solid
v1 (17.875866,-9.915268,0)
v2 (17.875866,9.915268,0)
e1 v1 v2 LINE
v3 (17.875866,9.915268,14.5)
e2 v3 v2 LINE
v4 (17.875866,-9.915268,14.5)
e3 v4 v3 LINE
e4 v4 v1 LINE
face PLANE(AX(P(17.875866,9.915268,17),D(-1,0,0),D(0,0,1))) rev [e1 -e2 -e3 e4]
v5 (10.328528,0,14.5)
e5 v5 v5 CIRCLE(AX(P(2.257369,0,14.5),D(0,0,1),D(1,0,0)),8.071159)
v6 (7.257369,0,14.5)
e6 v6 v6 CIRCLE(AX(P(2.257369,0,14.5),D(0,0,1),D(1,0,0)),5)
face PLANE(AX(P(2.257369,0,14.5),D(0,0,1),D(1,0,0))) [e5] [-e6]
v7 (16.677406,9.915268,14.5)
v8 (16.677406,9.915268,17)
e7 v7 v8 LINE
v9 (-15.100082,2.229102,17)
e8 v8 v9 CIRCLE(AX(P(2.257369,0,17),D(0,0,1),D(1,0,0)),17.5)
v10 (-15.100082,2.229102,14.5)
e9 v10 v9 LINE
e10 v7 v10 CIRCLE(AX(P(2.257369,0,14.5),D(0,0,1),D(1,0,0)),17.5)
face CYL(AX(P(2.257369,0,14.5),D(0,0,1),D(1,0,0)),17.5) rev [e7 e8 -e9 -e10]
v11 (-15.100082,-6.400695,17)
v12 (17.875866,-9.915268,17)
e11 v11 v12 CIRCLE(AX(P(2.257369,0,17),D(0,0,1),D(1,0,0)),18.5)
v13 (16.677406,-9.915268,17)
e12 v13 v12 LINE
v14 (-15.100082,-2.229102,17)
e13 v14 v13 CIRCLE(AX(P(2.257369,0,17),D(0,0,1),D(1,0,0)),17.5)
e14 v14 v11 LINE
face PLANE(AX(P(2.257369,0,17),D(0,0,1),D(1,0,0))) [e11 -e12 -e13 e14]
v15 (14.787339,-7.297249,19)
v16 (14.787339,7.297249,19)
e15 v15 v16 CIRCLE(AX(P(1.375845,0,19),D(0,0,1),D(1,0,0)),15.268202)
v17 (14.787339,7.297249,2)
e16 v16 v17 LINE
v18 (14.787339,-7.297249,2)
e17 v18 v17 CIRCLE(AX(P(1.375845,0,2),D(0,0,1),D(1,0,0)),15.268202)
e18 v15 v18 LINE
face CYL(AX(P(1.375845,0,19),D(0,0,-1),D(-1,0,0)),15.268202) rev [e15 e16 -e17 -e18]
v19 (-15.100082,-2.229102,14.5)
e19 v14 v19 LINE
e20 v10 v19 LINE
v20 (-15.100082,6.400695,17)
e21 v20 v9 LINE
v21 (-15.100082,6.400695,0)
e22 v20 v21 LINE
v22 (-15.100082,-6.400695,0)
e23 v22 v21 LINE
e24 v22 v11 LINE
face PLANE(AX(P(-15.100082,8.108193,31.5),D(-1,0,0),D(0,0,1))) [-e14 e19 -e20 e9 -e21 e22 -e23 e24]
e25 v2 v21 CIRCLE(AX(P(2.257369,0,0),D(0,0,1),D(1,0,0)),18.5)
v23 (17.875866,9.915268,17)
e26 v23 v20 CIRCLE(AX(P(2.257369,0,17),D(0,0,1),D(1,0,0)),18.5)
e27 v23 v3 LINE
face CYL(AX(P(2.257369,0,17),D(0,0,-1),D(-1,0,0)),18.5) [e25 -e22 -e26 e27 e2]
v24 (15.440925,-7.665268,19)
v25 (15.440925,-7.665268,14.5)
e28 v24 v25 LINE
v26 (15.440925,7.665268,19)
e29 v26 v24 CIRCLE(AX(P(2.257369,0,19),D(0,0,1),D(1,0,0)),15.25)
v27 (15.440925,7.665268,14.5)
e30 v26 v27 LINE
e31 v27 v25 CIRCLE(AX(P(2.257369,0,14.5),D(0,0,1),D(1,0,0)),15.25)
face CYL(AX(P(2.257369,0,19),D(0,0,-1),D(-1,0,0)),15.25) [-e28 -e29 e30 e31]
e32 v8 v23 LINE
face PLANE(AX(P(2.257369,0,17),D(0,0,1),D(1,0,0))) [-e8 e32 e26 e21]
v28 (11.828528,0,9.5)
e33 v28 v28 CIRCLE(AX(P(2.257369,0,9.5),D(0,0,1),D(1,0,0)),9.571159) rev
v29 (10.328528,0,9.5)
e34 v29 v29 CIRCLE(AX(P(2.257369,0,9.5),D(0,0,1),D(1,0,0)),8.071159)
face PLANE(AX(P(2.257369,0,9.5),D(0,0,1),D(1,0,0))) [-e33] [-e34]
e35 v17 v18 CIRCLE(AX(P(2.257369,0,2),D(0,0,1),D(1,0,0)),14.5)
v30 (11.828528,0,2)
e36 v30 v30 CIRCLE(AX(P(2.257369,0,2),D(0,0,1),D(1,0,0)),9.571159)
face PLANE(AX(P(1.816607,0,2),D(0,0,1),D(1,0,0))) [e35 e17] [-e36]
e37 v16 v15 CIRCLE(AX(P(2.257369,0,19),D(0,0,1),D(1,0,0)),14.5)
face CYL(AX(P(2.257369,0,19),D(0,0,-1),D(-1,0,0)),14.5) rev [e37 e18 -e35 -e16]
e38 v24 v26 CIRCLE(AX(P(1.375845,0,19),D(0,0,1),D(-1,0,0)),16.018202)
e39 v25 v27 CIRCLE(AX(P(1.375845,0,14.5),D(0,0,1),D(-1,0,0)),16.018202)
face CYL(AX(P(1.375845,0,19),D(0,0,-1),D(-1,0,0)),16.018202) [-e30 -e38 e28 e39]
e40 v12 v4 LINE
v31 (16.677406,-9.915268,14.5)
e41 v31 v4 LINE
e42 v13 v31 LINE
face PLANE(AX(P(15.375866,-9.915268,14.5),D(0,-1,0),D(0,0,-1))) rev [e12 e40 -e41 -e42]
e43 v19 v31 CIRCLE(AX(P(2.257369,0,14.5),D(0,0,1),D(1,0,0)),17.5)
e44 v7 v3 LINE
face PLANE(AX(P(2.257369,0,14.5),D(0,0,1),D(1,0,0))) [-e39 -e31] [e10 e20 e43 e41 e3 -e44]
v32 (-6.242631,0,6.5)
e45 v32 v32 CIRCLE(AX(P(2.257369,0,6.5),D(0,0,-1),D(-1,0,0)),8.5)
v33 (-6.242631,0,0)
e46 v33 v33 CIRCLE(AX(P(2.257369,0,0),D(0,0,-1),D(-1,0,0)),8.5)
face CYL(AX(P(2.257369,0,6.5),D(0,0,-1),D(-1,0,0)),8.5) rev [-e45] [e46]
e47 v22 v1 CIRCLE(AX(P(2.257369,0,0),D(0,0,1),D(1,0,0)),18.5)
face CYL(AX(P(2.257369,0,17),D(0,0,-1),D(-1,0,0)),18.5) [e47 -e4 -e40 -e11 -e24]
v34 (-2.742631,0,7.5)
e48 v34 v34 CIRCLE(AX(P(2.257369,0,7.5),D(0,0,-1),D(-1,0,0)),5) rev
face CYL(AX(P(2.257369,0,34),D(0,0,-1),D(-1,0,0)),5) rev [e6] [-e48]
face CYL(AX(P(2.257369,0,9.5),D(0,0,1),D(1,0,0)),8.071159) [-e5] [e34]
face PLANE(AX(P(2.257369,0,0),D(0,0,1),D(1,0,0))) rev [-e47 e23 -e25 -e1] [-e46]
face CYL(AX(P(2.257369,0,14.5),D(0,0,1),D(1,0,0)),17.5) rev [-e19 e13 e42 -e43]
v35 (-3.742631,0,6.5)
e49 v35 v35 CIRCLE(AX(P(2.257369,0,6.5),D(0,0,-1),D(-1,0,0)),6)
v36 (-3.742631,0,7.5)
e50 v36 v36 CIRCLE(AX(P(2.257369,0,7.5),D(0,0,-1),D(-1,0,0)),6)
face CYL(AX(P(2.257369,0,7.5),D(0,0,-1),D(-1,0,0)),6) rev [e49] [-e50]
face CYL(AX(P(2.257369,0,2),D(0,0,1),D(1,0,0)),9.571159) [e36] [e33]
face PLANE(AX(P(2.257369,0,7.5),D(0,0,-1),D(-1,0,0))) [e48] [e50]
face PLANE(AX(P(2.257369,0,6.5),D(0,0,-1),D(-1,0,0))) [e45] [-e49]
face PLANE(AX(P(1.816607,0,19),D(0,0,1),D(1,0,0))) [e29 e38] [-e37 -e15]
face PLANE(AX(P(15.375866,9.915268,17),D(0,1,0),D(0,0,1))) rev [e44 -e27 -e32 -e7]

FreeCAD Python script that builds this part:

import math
import FreeCAD as App
import Part
import Sketcher
Q = App.Units.Quantity

doc = App.newDocument("Part")
body = doc.addObject("PartDesign::Body", "Body")

sketch1 = doc.addObject("Sketcher::SketchObject", "Sketch")
body.addObject(sketch1)
sketch1.AttachmentSupport = (doc.XY_Plane, [""])
sketch1.MapMode = "FlatFace"
sketch1.addGeometry(Part.LineSegment(App.Vector(18, -10, 0), App.Vector(18, 10, 0)), False)
sketch1.addGeometry(Part.ArcOfCircle(Part.Circle(App.Vector(2, 0, 0), App.Vector(0, 0, 1), 18), math.radians(32), math.radians(328)), False)
sketch1.addConstraint(Sketcher.Constraint("Coincident", 0, 1, 1, 2))
sketch1.addConstraint(Sketcher.Constraint("Coincident", 1, 1, 0, 2))
sketch1.addConstraint(Sketcher.Constraint("Vertical", 0))
sketch1.addConstraint(Sketcher.Constraint("PointOnObject", 1, 3, -1))
sketch1.addConstraint(Sketcher.Constraint("Radius", 1, Q("18.5 mm")))
sketch1.addConstraint(Sketcher.Constraint("DistanceY", 0, 1, 0, 2, Q("19.830536 mm")))
sketch1.addConstraint(Sketcher.Constraint("DistanceX", -1, 1, 1, 3, Q("2.257369 mm")))
pad1 = doc.addObject("PartDesign::Pad", "Pad")
body.addObject(pad1)
pad1.Profile = sketch1
pad1.Length = 17

sketch2 = doc.addObject("Sketcher::SketchObject", "Sketch001")
body.addObject(sketch2)
sketch2.AttachmentSupport = (doc.XY_Plane, [""])
sketch2.MapMode = "FlatFace"
sketch2.AttachmentOffset = App.Placement(App.Vector(0, 0, 17), App.Rotation())
sketch2.addGeometry(Part.LineSegment(App.Vector(17, -10, 0), App.Vector(17, 10, 0)), False)
sketch2.addGeometry(Part.ArcOfCircle(Part.Circle(App.Vector(2, 0, 0), App.Vector(0, 0, 1), 18), math.radians(33), math.radians(327)), False)
sketch2.addConstraint(Sketcher.Constraint("Coincident", 0, 1, 1, 2))
sketch2.addConstraint(Sketcher.Constraint("Coincident", 1, 1, 0, 2))
sketch2.addConstraint(Sketcher.Constraint("Vertical", 0))
sketch2.addConstraint(Sketcher.Constraint("PointOnObject", 1, 3, -1))
sketch2.addConstraint(Sketcher.Constraint("Radius", 1, Q("17.5 mm")))
sketch2.addConstraint(Sketcher.Constraint("DistanceY", 0, 1, 0, 2, Q("19.240534 mm")))
sketch2.addConstraint(Sketcher.Constraint("DistanceX", -1, 1, 1, 3, Q("2.257369 mm")))
pocket1 = doc.addObject("PartDesign::Pocket", "Pocket")
body.addObject(pocket1)
pocket1.Profile = sketch2
pocket1.Length = 2.5

sketch3 = doc.addObject("Sketcher::SketchObject", "Sketch002")
body.addObject(sketch3)
sketch3.AttachmentSupport = (doc.YZ_Plane, [""])
sketch3.MapMode = "FlatFace"
sketch3.AttachmentOffset = App.Placement(App.Vector(0, 0, 17.875866), App.Rotation())
sketch3.addGeometry(Part.LineSegment(App.Vector(9.9, 17, 0), App.Vector(-9.9, 17, 0)), False)
sketch3.addGeometry(Part.LineSegment(App.Vector(-9.9, 17, 0), App.Vector(-9.9, 14.5, 0)), False)
sketch3.addGeometry(Part.LineSegment(App.Vector(-9.9, 14.5, 0), App.Vector(9.9, 14.5, 0)), False)
sketch3.addGeometry(Part.LineSegment(App.Vector(9.9, 14.5, 0), App.Vector(9.9, 17, 0)), False)
sketch3.addConstraint(Sketcher.Constraint("Coincident", 0, 2, 1, 1))
sketch3.addConstraint(Sketcher.Constraint("Coincident", 1, 2, 2, 1))
sketch3.addConstraint(Sketcher.Constraint("Coincident", 2, 2, 3, 1))
sketch3.addConstraint(Sketcher.Constraint("Coincident", 3, 2, 0, 1))
sketch3.addConstraint(Sketcher.Constraint("Horizontal", 0))
sketch3.addConstraint(Sketcher.Constraint("Vertical", 1))
sketch3.addConstraint(Sketcher.Constraint("Horizontal", 2))
sketch3.addConstraint(Sketcher.Constraint("Vertical", 3))
sketch3.addConstraint(Sketcher.Constraint("DistanceY", 1, 2, 1, 1, Q("2.5 mm")))
sketch3.addConstraint(Sketcher.Constraint("DistanceY", -1, 1, 0, 2, Q("17 mm")))
sketch3.addConstraint(Sketcher.Constraint("DistanceX", 0, 2, 0, 1, Q("19.830536 mm")))
sketch3.addConstraint(Sketcher.Constraint("DistanceX", 0, 2, -1, 1, Q("9.915268 mm")))
pocket2 = doc.addObject("PartDesign::Pocket", "Pocket001")
body.addObject(pocket2)
pocket2.Profile = sketch3
pocket2.Length = 2.5

sketch4 = doc.addObject("Sketcher::SketchObject", "Sketch003")
body.addObject(sketch4)
sketch4.AttachmentSupport = (doc.XY_Plane, [""])
sketch4.MapMode = "FlatFace"
sketch4.AttachmentOffset = App.Placement(App.Vector(0, 0, 14.5), App.Rotation())
sketch4.addGeometry(Part.ArcOfCircle(Part.Circle(App.Vector(1, 0, 0), App.Vector(0, 0, 1), 16), math.radians(-29), math.radians(29)), False)
sketch4.addGeometry(Part.ArcOfCircle(Part.Circle(App.Vector(2, 0, 0), App.Vector(0, 0, 1), 15), math.radians(30), math.radians(330)), False)
sketch4.addGeometry(Part.ArcOfCircle(Part.Circle(App.Vector(1, 0, 0), App.Vector(0, 0, 1), 15), math.radians(-29), math.radians(29)), False)
sketch4.addGeometry(Part.ArcOfCircle(Part.Circle(App.Vector(2, 0, 0), App.Vector(0, 0, 1), 14), math.radians(30), math.radians(330)), False)
sketch4.addConstraint(Sketcher.Constraint("Coincident", 0, 1, 1, 2))
sketch4.addConstraint(Sketcher.Constraint("Coincident", 1, 1, 0, 2))
sketch4.addConstraint(Sketcher.Constraint("Coincident", 2, 1, 3, 2))
sketch4.addConstraint(Sketcher.Constraint("Coincident", 3, 1, 2, 2))
sketch4.addConstraint(Sketcher.Constraint("Coincident", 2, 3, 0, 3))
sketch4.addConstraint(Sketcher.Constraint("Coincident", 3, 3, 1, 3))
sketch4.addConstraint(Sketcher.Constraint("Symmetric", 0, 1, 1, 1, -1))
sketch4.addConstraint(Sketcher.Constraint("Radius", 3, Q("14.5 mm")))
sketch4.addConstraint(Sketcher.Constraint("Radius", 1, Q("15.25 mm")))
sketch4.addConstraint(Sketcher.Constraint("Radius", 0, Q("16.018202 mm")))
sketch4.addConstraint(Sketcher.Constraint("Radius", 2, Q("15.268202 mm")))
sketch4.addConstraint(Sketcher.Constraint("DistanceY", 2, 1, 3, 1, Q("14.594499 mm")))
sketch4.addConstraint(Sketcher.Constraint("DistanceX", -1, 1, 1, 3, Q("2.257369 mm")))
pad2 = doc.addObject("PartDesign::Pad", "Pad001")
body.addObject(pad2)
pad2.Profile = sketch4
pad2.Length = 4.5

sketch5 = doc.addObject("Sketcher::SketchObject", "Sketch004")
body.addObject(sketch5)
sketch5.AttachmentSupport = (doc.XY_Plane, [""])
sketch5.MapMode = "FlatFace"
sketch5.addGeometry(Part.Circle(App.Vector(2, 0, 0), App.Vector(0, 0, 1), 8), False)
sketch5.addConstraint(Sketcher.Constraint("PointOnObject", 0, 3, -1))
sketch5.addConstraint(Sketcher.Constraint("Diameter", 0, Q("17 mm")))
sketch5.addConstraint(Sketcher.Constraint("DistanceX", -1, 1, 0, 3, Q("2.257369 mm")))
pocket3 = doc.addObject("PartDesign::Pocket", "Pocket002")
body.addObject(pocket3)
pocket3.Profile = sketch5
pocket3.Length = 6.5
pocket3.Reversed = True

sketch6 = doc.addObject("Sketcher::SketchObject", "Sketch005")
body.addObject(sketch6)
sketch6.AttachmentSupport = (doc.XY_Plane, [""])
sketch6.MapMode = "FlatFace"
sketch6.AttachmentOffset = App.Placement(App.Vector(0, 0, 6.5), App.Rotation())
sketch6.addGeometry(Part.Circle(App.Vector(2, 0, 0), App.Vector(0, 0, 1), 5), False)
sketch6.addConstraint(Sketcher.Constraint("PointOnObject", 0, 3, -1))
sketch6.addConstraint(Sketcher.Constraint("Diameter", 0, Q("10 mm")))
sketch6.addConstraint(Sketcher.Constraint("DistanceX", -1, 1, 0, 3, Q("2.257369 mm")))
pocket4 = doc.addObject("PartDesign::Pocket", "Pocket003")
body.addObject(pocket4)
pocket4.Profile = sketch6
pocket4.Length = 27.5
pocket4.Reversed = True

sketch7 = doc.addObject("Sketcher::SketchObject", "Sketch006")
body.addObject(sketch7)
sketch7.AttachmentSupport = (doc.XY_Plane, [""])
sketch7.MapMode = "FlatFace"
sketch7.AttachmentOffset = App.Placement(App.Vector(0, 0, 6.5), App.Rotation())
sketch7.addGeometry(Part.Circle(App.Vector(2, 0, 0), App.Vector(0, 0, 1), 6), False)
sketch7.addConstraint(Sketcher.Constraint("PointOnObject", 0, 3, -1))
sketch7.addConstraint(Sketcher.Constraint("Diameter", 0, Q("12 mm")))
sketch7.addConstraint(Sketcher.Constraint("DistanceX", -1, 1, 0, 3, Q("2.257369 mm")))
pocket5 = doc.addObject("PartDesign::Pocket", "Pocket004")
body.addObject(pocket5)
pocket5.Profile = sketch7
pocket5.Type = "TwoLengths"
pocket5.Length = 0.5
pocket5.Length2 = 1

sketch8 = doc.addObject("Sketcher::SketchObject", "Sketch007")
body.addObject(sketch8)
sketch8.AttachmentSupport = (doc.XY_Plane, [""])
sketch8.MapMode = "FlatFace"
sketch8.AttachmentOffset = App.Placement(App.Vector(0, 0, 2), App.Rotation())
sketch8.addGeometry(Part.ArcOfCircle(Part.Circle(App.Vector(2, 0, 0), App.Vector(0, 0, 1), 14), math.radians(30), math.radians(330)), False)
sketch8.addGeometry(Part.ArcOfCircle(Part.Circle(App.Vector(1, 0, 0), App.Vector(0, 0, 1), 15), math.radians(-29), math.radians(29)), False)
sketch8.addGeometry(Part.Circle(App.Vector(2, 0, 0), App.Vector(0, 0, 1), 10), False)
sketch8.addConstraint(Sketcher.Constraint("Coincident", 0, 1, 1, 2))
sketch8.addConstraint(Sketcher.Constraint("Coincident", 1, 1, 0, 2))
sketch8.addConstraint(Sketcher.Constraint("Coincident", 2, 3, 0, 3))
sketch8.addConstraint(Sketcher.Constraint("Symmetric", 0, 1, 1, 1, -1))
sketch8.addConstraint(Sketcher.Constraint("Radius", 0, Q("14.5 mm")))
sketch8.addConstraint(Sketcher.Constraint("Diameter", 2, Q("19.142318 mm")))
sketch8.addConstraint(Sketcher.Constraint("Radius", 1, Q("15.268202 mm")))
sketch8.addConstraint(Sketcher.Constraint("DistanceY", 1, 1, 0, 1, Q("14.594499 mm")))
sketch8.addConstraint(Sketcher.Constraint("DistanceX", -1, 1, 0, 3, Q("2.257369 mm")))
pocket6 = doc.addObject("PartDesign::Pocket", "Pocket005")
body.addObject(pocket6)
pocket6.Profile = sketch8
pocket6.Length = 12.5
pocket6.Reversed = True

sketch9 = doc.addObject("Sketcher::SketchObject", "Sketch008")
body.addObject(sketch9)
sketch9.AttachmentSupport = (doc.XY_Plane, [""])
sketch9.MapMode = "FlatFace"
sketch9.AttachmentOffset = App.Placement(App.Vector(0, 0, 14.5), App.Rotation())
sketch9.addGeometry(Part.Circle(App.Vector(2, 0, 0), App.Vector(0, 0, 1), 10), False)
sketch9.addGeometry(Part.Circle(App.Vector(2, 0, 0), App.Vector(0, 0, 1), 8), False)
sketch9.addConstraint(Sketcher.Constraint("Coincident", 1, 3, 0, 3))
sketch9.addConstraint(Sketcher.Constraint("PointOnObject", 0, 3, -1))
sketch9.addConstraint(Sketcher.Constraint("Diameter", 0, Q("20.142318 mm")))
sketch9.addConstraint(Sketcher.Constraint("Diameter", 1, Q("16.142318 mm")))
sketch9.addConstraint(Sketcher.Constraint("DistanceX", -1, 1, 0, 3, Q("2.257369 mm")))
pocket7 = doc.addObject("PartDesign::Pocket", "Pocket006")
body.addObject(pocket7)
pocket7.Profile = sketch9
pocket7.Length = 5

sketch10 = doc.addObject("Sketcher::SketchObject", "Sketch009")
body.addObject(sketch10)
sketch10.AttachmentSupport = (doc.XY_Plane, [""])
sketch10.MapMode = "FlatFace"
sketch10.addGeometry(Part.LineSegment(App.Vector(-17.7, 8.1, 0), App.Vector(-17.7, -9.1, 0)), False)
sketch10.addGeometry(Part.LineSegment(App.Vector(-17.7, -9.1, 0), App.Vector(-15.1, -9.1, 0)), False)
sketch10.addGeometry(Part.LineSegment(App.Vector(-15.1, -9.1, 0), App.Vector(-15.1, 8.1, 0)), False)
sketch10.addGeometry(Part.LineSegment(App.Vector(-15.1, 8.1, 0), App.Vector(-17.7, 8.1, 0)), False)
sketch10.addConstraint(Sketcher.Constraint("Coincident", 0, 2, 1, 1))
sketch10.addConstraint(Sketcher.Constraint("Coincident", 1, 2, 2, 1))
sketch10.addConstraint(Sketcher.Constraint("Coincident", 2, 2, 3, 1))
sketch10.addConstraint(Sketcher.Constraint("Coincident", 3, 2, 0, 1))
sketch10.addConstraint(Sketcher.Constraint("Vertical", 0))
sketch10.addConstraint(Sketcher.Constraint("Horizontal", 1))
sketch10.addConstraint(Sketcher.Constraint("Vertical", 2))
sketch10.addConstraint(Sketcher.Constraint("Horizontal", 3))
sketch10.addConstraint(Sketcher.Constraint("DistanceX", 1, 1, 1, 2, Q("2.588486 mm")))
sketch10.addConstraint(Sketcher.Constraint("DistanceY", 0, 2, 0, 1, Q("17.190343 mm")))
sketch10.addConstraint(Sketcher.Constraint("DistanceX", 0, 2, -1, 1, Q("17.688568 mm")))
sketch10.addConstraint(Sketcher.Constraint("DistanceY", 0, 2, -1, 1, Q("9.08215 mm")))
pocket8 = doc.addObject("PartDesign::Pocket", "Pocket007")
body.addObject(pocket8)
pocket8.Profile = sketch10
pocket8.Length = 31.5
pocket8.Reversed = True

doc.recompute()
